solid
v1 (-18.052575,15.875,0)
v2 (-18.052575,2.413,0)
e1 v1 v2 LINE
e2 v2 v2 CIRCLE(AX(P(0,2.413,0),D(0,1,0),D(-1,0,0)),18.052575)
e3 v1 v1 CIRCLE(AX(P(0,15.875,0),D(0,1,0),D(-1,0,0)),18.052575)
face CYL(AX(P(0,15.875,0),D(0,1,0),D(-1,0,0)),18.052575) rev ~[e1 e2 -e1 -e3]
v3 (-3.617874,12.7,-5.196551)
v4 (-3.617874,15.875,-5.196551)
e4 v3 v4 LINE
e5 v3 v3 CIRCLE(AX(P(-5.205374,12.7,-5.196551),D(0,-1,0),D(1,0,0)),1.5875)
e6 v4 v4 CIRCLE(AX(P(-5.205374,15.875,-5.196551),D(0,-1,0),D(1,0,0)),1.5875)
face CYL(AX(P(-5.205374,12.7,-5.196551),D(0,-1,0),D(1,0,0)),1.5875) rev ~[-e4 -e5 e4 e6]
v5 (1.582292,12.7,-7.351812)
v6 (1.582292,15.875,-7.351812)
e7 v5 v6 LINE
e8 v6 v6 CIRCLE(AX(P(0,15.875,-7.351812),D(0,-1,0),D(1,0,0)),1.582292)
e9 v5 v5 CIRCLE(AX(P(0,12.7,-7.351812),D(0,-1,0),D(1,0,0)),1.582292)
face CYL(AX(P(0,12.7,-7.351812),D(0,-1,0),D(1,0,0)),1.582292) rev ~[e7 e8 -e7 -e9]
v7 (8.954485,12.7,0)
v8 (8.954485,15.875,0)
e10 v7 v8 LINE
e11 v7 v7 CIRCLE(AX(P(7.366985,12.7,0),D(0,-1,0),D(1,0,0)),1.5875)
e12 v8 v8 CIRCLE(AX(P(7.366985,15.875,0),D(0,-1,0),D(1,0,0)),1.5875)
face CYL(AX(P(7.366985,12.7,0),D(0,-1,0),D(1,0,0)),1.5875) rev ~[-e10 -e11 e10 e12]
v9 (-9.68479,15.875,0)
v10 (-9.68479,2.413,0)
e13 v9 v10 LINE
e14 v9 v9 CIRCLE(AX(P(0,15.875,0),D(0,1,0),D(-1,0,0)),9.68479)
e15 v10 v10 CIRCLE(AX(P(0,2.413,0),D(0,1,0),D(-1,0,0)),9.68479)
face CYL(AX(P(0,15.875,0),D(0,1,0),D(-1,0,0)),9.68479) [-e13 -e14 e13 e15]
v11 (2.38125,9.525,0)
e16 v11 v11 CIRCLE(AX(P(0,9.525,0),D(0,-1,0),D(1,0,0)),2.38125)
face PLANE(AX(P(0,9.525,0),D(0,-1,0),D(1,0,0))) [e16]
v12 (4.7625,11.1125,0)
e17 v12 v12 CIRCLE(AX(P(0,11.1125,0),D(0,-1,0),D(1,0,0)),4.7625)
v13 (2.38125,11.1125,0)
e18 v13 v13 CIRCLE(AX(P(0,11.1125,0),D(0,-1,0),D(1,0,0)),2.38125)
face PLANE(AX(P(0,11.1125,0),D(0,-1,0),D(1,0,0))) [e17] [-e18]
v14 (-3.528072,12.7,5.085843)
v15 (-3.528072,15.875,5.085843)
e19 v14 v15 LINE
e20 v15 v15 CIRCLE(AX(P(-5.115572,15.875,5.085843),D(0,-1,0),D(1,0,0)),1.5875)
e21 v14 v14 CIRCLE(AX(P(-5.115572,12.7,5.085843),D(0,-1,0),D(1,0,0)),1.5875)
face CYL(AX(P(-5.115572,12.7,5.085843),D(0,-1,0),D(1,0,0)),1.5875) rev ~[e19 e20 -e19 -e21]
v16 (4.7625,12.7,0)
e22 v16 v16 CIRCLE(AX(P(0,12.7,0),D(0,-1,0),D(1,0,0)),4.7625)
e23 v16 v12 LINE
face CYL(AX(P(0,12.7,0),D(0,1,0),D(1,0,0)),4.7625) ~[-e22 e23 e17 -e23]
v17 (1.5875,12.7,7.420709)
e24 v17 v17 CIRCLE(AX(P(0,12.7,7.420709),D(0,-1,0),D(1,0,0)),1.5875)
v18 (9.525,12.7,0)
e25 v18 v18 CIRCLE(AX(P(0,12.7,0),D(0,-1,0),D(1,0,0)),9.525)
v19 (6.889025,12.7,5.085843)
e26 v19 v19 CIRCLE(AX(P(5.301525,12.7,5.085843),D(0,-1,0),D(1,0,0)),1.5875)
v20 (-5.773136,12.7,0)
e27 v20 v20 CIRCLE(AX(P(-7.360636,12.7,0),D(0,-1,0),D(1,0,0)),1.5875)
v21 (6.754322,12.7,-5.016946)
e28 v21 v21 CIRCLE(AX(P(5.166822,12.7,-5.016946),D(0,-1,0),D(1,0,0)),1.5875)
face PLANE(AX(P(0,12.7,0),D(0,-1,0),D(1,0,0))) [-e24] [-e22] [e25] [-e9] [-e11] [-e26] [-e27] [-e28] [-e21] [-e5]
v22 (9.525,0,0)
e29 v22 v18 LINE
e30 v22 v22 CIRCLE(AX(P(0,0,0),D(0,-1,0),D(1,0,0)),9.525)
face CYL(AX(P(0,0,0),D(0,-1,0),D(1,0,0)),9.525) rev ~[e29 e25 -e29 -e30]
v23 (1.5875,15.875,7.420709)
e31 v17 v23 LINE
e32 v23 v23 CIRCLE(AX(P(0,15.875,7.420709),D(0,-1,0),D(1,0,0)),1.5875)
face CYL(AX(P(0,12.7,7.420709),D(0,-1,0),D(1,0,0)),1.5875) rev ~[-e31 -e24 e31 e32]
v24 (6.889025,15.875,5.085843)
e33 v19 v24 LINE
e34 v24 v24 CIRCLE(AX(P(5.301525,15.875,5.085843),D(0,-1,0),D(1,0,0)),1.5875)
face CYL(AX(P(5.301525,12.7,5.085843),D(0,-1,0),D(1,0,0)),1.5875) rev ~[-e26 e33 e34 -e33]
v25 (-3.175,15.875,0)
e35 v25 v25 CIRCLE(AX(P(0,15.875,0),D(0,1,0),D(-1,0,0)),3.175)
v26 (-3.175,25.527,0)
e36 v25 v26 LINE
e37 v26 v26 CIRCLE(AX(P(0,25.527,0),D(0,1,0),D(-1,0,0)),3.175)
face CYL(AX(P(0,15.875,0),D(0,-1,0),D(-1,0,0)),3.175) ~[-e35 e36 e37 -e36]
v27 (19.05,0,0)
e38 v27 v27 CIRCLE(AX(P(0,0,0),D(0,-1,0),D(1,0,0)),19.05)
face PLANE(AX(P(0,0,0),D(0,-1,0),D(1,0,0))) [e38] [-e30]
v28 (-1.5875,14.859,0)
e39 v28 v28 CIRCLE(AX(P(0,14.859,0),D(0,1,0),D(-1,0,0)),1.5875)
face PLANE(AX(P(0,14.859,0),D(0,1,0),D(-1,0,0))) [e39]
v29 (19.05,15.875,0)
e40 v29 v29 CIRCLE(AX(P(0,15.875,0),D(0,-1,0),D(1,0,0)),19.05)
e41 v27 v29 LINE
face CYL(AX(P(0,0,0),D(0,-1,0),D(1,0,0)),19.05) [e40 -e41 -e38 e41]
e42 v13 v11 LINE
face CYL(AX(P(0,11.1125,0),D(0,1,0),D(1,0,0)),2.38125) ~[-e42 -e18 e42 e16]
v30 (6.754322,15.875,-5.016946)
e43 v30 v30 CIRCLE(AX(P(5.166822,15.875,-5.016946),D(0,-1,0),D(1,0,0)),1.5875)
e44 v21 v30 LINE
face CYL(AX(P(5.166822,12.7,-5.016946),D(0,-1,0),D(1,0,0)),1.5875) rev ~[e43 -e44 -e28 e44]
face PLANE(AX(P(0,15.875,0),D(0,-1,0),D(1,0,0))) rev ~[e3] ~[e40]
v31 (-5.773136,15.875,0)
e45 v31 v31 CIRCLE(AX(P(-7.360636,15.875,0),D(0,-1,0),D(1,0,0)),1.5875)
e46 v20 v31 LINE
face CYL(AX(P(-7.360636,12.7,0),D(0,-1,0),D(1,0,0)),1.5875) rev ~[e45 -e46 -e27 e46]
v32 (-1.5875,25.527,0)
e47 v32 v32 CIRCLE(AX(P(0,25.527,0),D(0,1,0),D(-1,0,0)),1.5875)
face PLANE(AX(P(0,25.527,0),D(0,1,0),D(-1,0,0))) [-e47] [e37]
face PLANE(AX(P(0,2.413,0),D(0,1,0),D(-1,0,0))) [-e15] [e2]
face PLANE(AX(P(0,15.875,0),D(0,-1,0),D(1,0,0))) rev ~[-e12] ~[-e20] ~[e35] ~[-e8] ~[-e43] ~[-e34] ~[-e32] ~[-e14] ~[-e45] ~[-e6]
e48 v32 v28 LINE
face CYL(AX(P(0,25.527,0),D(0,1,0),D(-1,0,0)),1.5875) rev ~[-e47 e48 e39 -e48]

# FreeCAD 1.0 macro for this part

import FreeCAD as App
import Part
import Sketcher
Q = App.Units.Quantity

doc = App.newDocument("Part")
params = doc.addObject("Spreadsheet::Sheet", "Params")
for row, (alias, value) in enumerate([
    ("sketch1_diameter", "1.5 in"),
    ("pad1_length", "0.625 in"),
    ("sketch2_diameter", "0.75 in"),
    ("pocket1_length", "0.5 in"),
    ("sketch3_diameter", "0.125 in"),
    ("pocket2_length", "1 in"),
    ("pocket3_length", "1 in"),
    ("sketch5_diameter", "0.125 in"),
    ("pocket4_length", "1 in"),
    ("sketch6_diameter", "0.125 in"),
    ("pocket5_length", "1 in"),
    ("sketch7_diameter", "0.125 in"),
    ("pocket6_length", "1 in"),
    ("sketch8_diameter", "0.125 in"),
    ("pocket7_length", "1 in"),
    ("sketch9_diameter", "0.125 in"),
    ("pocket8_length", "1 in"),
    ("sketch10_diameter", "0.125 in"),
    ("pocket9_length", "1 in"),
    ("sketch11_diameter", "0.375 in"),
    ("pad2_length", "0.0625 in"),
    ("sketch12_diameter", "0.1875 in"),
    ("pad3_length", "0.0625 in"),
    ("pocket10_length", "0.53 in"),
    ("sketch14_diameter", "0.25 in"),
    ("pad4_length", "0.38 in"),
    ("sketch15_diameter", "0.125 in"),
    ("pocket11_length", "0.42 in"),
], start=1):
    params.set(f"A{row}", alias)
    params.set(f"B{row}", "=" + value)
    params.setAlias(f"B{row}", alias)

body = doc.addObject("PartDesign::Body", "Body")

# Sketch on XZ plane
sketch1 = doc.addObject("Sketcher::SketchObject", "Sketch")
body.addObject(sketch1)
sketch1.AttachmentSupport = (doc.XZ_Plane, [""])
sketch1.MapMode = "FlatFace"
sketch1.addGeometry(Part.Circle(App.Vector(0, 0, 0), App.Vector(0, 0, 1), 19.05), False)
sketch1.addConstraint([
    Sketcher.Constraint("Coincident", 0, 3, -1, 1),
    Sketcher.Constraint("Diameter", 0, Q("1.5 in")),
])
sketch1.setExpression("Constraints[1]", "Params.sketch1_diameter")
pad1 = doc.addObject("PartDesign::Pad", "Pad")
body.addObject(pad1)
pad1.Profile = sketch1
pad1.setExpression("Length", "Params.pad1_length")
pad1.Reversed = True

# Sketch on XZ plane
sketch2 = doc.addObject("Sketcher::SketchObject", "Sketch001")
body.addObject(sketch2)
sketch2.AttachmentSupport = (doc.XZ_Plane, [""])
sketch2.MapMode = "FlatFace"
sketch2.addGeometry(Part.Circle(App.Vector(0, 0, 0), App.Vector(0, 0, 1), 9.525), False)
sketch2.addConstraint([
    Sketcher.Constraint("Coincident", 0, 3, -1, 1),
    Sketcher.Constraint("Diameter", 0, Q("0.75 in")),
])
sketch2.setExpression("Constraints[1]", "Params.sketch2_diameter")
pocket1 = doc.addObject("PartDesign::Pocket", "Pocket")
body.addObject(pocket1)
pocket1.Profile = sketch2
pocket1.setExpression("Length", "Params.pocket1_length")

# Sketch on XZ plane
sketch3 = doc.addObject("Sketcher::SketchObject", "Sketch002")
body.addObject(sketch3)
sketch3.AttachmentSupport = (doc.XZ_Plane, [""])
sketch3.MapMode = "FlatFace"
sketch3.AttachmentOffset = App.Placement(App.Vector(0, 0, -0.5 * 25.4), App.Rotation())
sketch3.addGeometry(Part.Circle(App.Vector(0, 7.420709, 0), App.Vector(0, 0, 1), 1.5875), False)
sketch3.addConstraint([
    Sketcher.Constraint("PointOnObject", 0, 3, -2),
    Sketcher.Constraint("Diameter", 0, Q("0.125 in")),
    Sketcher.Constraint("DistanceY", -1, 1, 0, 3, 7.420709),
])
sketch3.setExpression("Constraints[1]", "Params.sketch3_diameter")
pocket2 = doc.addObject("PartDesign::Pocket", "Pocket001")
body.addObject(pocket2)
pocket2.Profile = sketch3
pocket2.setExpression("Length", "Params.pocket2_length")

# Sketch on XZ plane
sketch4 = doc.addObject("Sketcher::SketchObject", "Sketch003")
body.addObject(sketch4)
sketch4.AttachmentSupport = (doc.XZ_Plane, [""])
sketch4.MapMode = "FlatFace"
sketch4.AttachmentOffset = App.Placement(App.Vector(0, 0, -0.5 * 25.4), App.Rotation())
sketch4.addGeometry(Part.Circle(App.Vector(0, -7.351812, 0), App.Vector(0, 0, 1), 1.582292), False)
sketch4.addConstraint([
    Sketcher.Constraint("PointOnObject", 0, 3, -2),
    Sketcher.Constraint("Diameter", 0, 3.164584),
    Sketcher.Constraint("DistanceY", 0, 3, -1, 1, 7.351812),
])
pocket3 = doc.addObject("PartDesign::Pocket", "Pocket002")
body.addObject(pocket3)
pocket3.Profile = sketch4
pocket3.setExpression("Length", "Params.pocket3_length")

# Sketch on XZ plane
sketch5 = doc.addObject("Sketcher::SketchObject", "Sketch004")
body.addObject(sketch5)
sketch5.AttachmentSupport = (doc.XZ_Plane, [""])
sketch5.MapMode = "FlatFace"
sketch5.AttachmentOffset = App.Placement(App.Vector(0, 0, -0.5 * 25.4), App.Rotation())
sketch5.addGeometry(Part.Circle(App.Vector(-7.360636, 0, 0), App.Vector(0, 0, 1), 1.5875), False)
sketch5.addConstraint([
    Sketcher.Constraint("PointOnObject", 0, 3, -1),
    Sketcher.Constraint("Diameter", 0, Q("0.125 in")),
    Sketcher.Constraint("DistanceX", 0, 3, -1, 1, 7.360636),
])
sketch5.setExpression("Constraints[1]", "Params.sketch5_diameter")
pocket4 = doc.addObject("PartDesign::Pocket", "Pocket003")
body.addObject(pocket4)
pocket4.Profile = sketch5
pocket4.setExpression("Length", "Params.pocket4_length")

# Sketch on XZ plane
sketch6 = doc.addObject("Sketcher::SketchObject", "Sketch005")
body.addObject(sketch6)
sketch6.AttachmentSupport = (doc.XZ_Plane, [""])
sketch6.MapMode = "FlatFace"
sketch6.AttachmentOffset = App.Placement(App.Vector(0, 0, -0.5 * 25.4), App.Rotation())
sketch6.addGeometry(Part.Circle(App.Vector(7.366985, 0, 0), App.Vector(0, 0, 1), 1.5875), False)
sketch6.addConstraint([
    Sketcher.Constraint("PointOnObject", 0, 3, -1),
    Sketcher.Constraint("Diameter", 0, Q("0.125 in")),
    Sketcher.Constraint("DistanceX", -1, 1, 0, 3, 7.366985),
])
sketch6.setExpression("Constraints[1]", "Params.sketch6_diameter")
pocket5 = doc.addObject("PartDesign::Pocket", "Pocket004")
body.addObject(pocket5)
pocket5.Profile = sketch6
pocket5.setExpression("Length", "Params.pocket5_length")

# Sketch on XZ plane
sketch7 = doc.addObject("Sketcher::SketchObject", "Sketch006")
body.addObject(sketch7)
sketch7.AttachmentSupport = (doc.XZ_Plane, [""])
sketch7.MapMode = "FlatFace"
sketch7.AttachmentOffset = App.Placement(App.Vector(0, 0, -0.5 * 25.4), App.Rotation())
sketch7.addGeometry(Part.Circle(App.Vector(-5.115572, 5.085843, 0), App.Vector(0, 0, 1), 1.5875), False)
sketch7.addConstraint([
    Sketcher.Constraint("Diameter", 0, Q("0.125 in")),
    Sketcher.Constraint("DistanceX", 0, 3, -1, 1, 5.115572),
    Sketcher.Constraint("DistanceY", -1, 1, 0, 3, 5.085843),
])
sketch7.setExpression("Constraints[0]", "Params.sketch7_diameter")
pocket6 = doc.addObject("PartDesign::Pocket", "Pocket005")
body.addObject(pocket6)
pocket6.Profile = sketch7
pocket6.setExpression("Length", "Params.pocket6_length")

# Sketch on XZ plane
sketch8 = doc.addObject("Sketcher::SketchObject", "Sketch007")
body.addObject(sketch8)
sketch8.AttachmentSupport = (doc.XZ_Plane, [""])
sketch8.MapMode = "FlatFace"
sketch8.AttachmentOffset = App.Placement(App.Vector(0, 0, -0.5 * 25.4), App.Rotation())
sketch8.addGeometry(Part.Circle(App.Vector(5.301525, 5.085843, 0), App.Vector(0, 0, 1), 1.5875), False)
sketch8.addConstraint([
    Sketcher.Constraint("Diameter", 0, Q("0.125 in")),
    Sketcher.Constraint("DistanceX", -1, 1, 0, 3, 5.301525),
    Sketcher.Constraint("DistanceY", -1, 1, 0, 3, 5.085843),
])
sketch8.setExpression("Constraints[0]", "Params.sketch8_diameter")
pocket7 = doc.addObject("PartDesign::Pocket", "Pocket006")
body.addObject(pocket7)
pocket7.Profile = sketch8
pocket7.setExpression("Length", "Params.pocket7_length")

# Sketch on XZ plane
sketch9 = doc.addObject("Sketcher::SketchObject", "Sketch008")
body.addObject(sketch9)
sketch9.AttachmentSupport = (doc.XZ_Plane, [""])
sketch9.MapMode = "FlatFace"
sketch9.AttachmentOffset = App.Placement(App.Vector(0, 0, -0.5 * 25.4), App.Rotation())
sketch9.addGeometry(Part.Circle(App.Vector(-5.205374, -5.196551, 0), App.Vector(0, 0, 1), 1.5875), False)
sketch9.addConstraint([
    Sketcher.Constraint("Diameter", 0, Q("0.125 in")),
    Sketcher.Constraint("DistanceY", 0, 3, -1, 1, 5.196551),
    Sketcher.Constraint("DistanceX", 0, 3, -1, 1, 5.205374),
])
sketch9.setExpression("Constraints[0]", "Params.sketch9_diameter")
pocket8 = doc.addObject("PartDesign::Pocket", "Pocket007")
body.addObject(pocket8)
pocket8.Profile = sketch9
pocket8.setExpression("Length", "Params.pocket8_length")

# Sketch on XZ plane
sketch10 = doc.addObject("Sketcher::SketchObject", "Sketch009")
body.addObject(sketch10)
sketch10.AttachmentSupport = (doc.XZ_Plane, [""])
sketch10.MapMode = "FlatFace"
sketch10.AttachmentOffset = App.Placement(App.Vector(0, 0, -0.5 * 25.4), App.Rotation())
sketch10.addGeometry(Part.Circle(App.Vector(5.166822, -5.016946, 0), App.Vector(0, 0, 1), 1.5875), False)
sketch10.addConstraint([
    Sketcher.Constraint("Diameter", 0, Q("0.125 in")),
    Sketcher.Constraint("DistanceX", -1, 1, 0, 3, 5.166822),
    Sketcher.Constraint("DistanceY", 0, 3, -1, 1, 5.016946),
])
sketch10.setExpression("Constraints[0]", "Params.sketch10_diameter")
pocket9 = doc.addObject("PartDesign::Pocket", "Pocket008")
body.addObject(pocket9)
pocket9.Profile = sketch10
pocket9.setExpression("Length", "Params.pocket9_length")

# Sketch on XZ plane
sketch11 = doc.addObject("Sketcher::SketchObject", "Sketch010")
body.addObject(sketch11)
sketch11.AttachmentSupport = (doc.XZ_Plane, [""])
sketch11.MapMode = "FlatFace"
sketch11.AttachmentOffset = App.Placement(App.Vector(0, 0, -0.5 * 25.4), App.Rotation())
sketch11.addGeometry(Part.Circle(App.Vector(0, 0, 0), App.Vector(0, 0, 1), 4.7625), False)
sketch11.addConstraint([
    Sketcher.Constraint("Coincident", 0, 3, -1, 1),
    Sketcher.Constraint("Diameter", 0, Q("0.375 in")),
])
sketch11.setExpression("Constraints[1]", "Params.sketch11_diameter")
pad2 = doc.addObject("PartDesign::Pad", "Pad001")
body.addObject(pad2)
pad2.Profile = sketch11
pad2.setExpression("Length", "Params.pad2_length")

# Sketch on XZ plane
sketch12 = doc.addObject("Sketcher::SketchObject", "Sketch011")
body.addObject(sketch12)
sketch12.AttachmentSupport = (doc.XZ_Plane, [""])
sketch12.MapMode = "FlatFace"
sketch12.AttachmentOffset = App.Placement(App.Vector(0, 0, -0.4375 * 25.4), App.Rotation())
sketch12.addGeometry(Part.Circle(App.Vector(0, 0, 0), App.Vector(0, 0, 1), 2.38125), False)
sketch12.addConstraint([
    Sketcher.Constraint("Coincident", 0, 3, -1, 1),
    Sketcher.Constraint("Diameter", 0, Q("0.1875 in")),
])
sketch12.setExpression("Constraints[1]", "Params.sketch12_diameter")
pad3 = doc.addObject("PartDesign::Pad", "Pad002")
body.addObject(pad3)
pad3.Profile = sketch12
pad3.setExpression("Length", "Params.pad3_length")

# Sketch on XZ plane
sketch13 = doc.addObject("Sketcher::SketchObject", "Sketch012")
body.addObject(sketch13)
sketch13.AttachmentSupport = (doc.XZ_Plane, [""])
sketch13.MapMode = "FlatFace"
sketch13.AttachmentOffset = App.Placement(App.Vector(0, 0, -0.625 * 25.4), App.Rotation())
sketch13.addGeometry([
    Part.Circle(App.Vector(0, 0, 0), App.Vector(0, 0, 1), 18.052575),
    Part.Circle(App.Vector(0, 0, 0), App.Vector(0, 0, 1), 9.68479),
], False)
sketch13.addConstraint([
    Sketcher.Constraint("Coincident", 0, 3, -1, 1),
    Sketcher.Constraint("Coincident", 1, 3, -1, 1),
    Sketcher.Constraint("Diameter", 0, 36.10515),
    Sketcher.Constraint("Diameter", 1, 19.36958),
])
pocket10 = doc.addObject("PartDesign::Pocket", "Pocket009")
body.addObject(pocket10)
pocket10.Profile = sketch13
pocket10.setExpression("Length", "Params.pocket10_length")
pocket10.Reversed = True

# Sketch on XZ plane
sketch14 = doc.addObject("Sketcher::SketchObject", "Sketch013")
body.addObject(sketch14)
sketch14.AttachmentSupport = (doc.XZ_Plane, [""])
sketch14.MapMode = "FlatFace"
sketch14.AttachmentOffset = App.Placement(App.Vector(0, 0, -0.625 * 25.4), App.Rotation())
sketch14.addGeometry(Part.Circle(App.Vector(0, 0, 0), App.Vector(0, 0, 1), 3.175), False)
sketch14.addConstraint([
    Sketcher.Constraint("Coincident", 0, 3, -1, 1),
    Sketcher.Constraint("Diameter", 0, Q("0.25 in")),
])
sketch14.setExpression("Constraints[1]", "Params.sketch14_diameter")
pad4 = doc.addObject("PartDesign::Pad", "Pad003")
body.addObject(pad4)
pad4.Profile = sketch14
pad4.setExpression("Length", "Params.pad4_length")
pad4.Reversed = True

# Sketch on XZ plane
sketch15 = doc.addObject("Sketcher::SketchObject", "Sketch014")
body.addObject(sketch15)
sketch15.AttachmentSupport = (doc.XZ_Plane, [""])
sketch15.MapMode = "FlatFace"
sketch15.AttachmentOffset = App.Placement(App.Vector(0, 0, -1.005 * 25.4), App.Rotation())
sketch15.addGeometry(Part.Circle(App.Vector(0, 0, 0), App.Vector(0, 0, 1), 1.5875), False)
sketch15.addConstraint([
    Sketcher.Constraint("Coincident", 0, 3, -1, 1),
    Sketcher.Constraint("Diameter", 0, Q("0.125 in")),
])
sketch15.setExpression("Constraints[1]", "Params.sketch15_diameter")
pocket11 = doc.addObject("PartDesign::Pocket", "Pocket010")
body.addObject(pocket11)
pocket11.Profile = sketch15
pocket11.setExpression("Length", "Params.pocket11_length")
pocket11.Reversed = True

doc.recompute()
